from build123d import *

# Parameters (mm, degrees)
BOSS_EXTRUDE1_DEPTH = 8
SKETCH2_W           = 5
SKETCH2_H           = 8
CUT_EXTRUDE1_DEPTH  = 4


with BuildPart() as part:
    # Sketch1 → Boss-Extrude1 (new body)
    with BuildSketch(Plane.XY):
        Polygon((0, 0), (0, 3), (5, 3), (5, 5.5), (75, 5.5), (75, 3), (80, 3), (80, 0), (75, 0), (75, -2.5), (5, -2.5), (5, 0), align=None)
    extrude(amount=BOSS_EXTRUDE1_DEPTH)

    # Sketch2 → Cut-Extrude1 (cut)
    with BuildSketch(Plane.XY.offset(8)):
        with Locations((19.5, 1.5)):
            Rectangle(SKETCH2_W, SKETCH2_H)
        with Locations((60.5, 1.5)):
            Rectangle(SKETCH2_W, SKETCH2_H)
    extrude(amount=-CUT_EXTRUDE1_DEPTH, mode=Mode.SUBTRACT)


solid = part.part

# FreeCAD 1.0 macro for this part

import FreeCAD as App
import Part
import Sketcher
from FreeCAD import Vector

doc = App.newDocument("Part")
body = doc.addObject("PartDesign::Body", "Body")

# Sketch on XY plane
sketch1 = doc.addObject("Sketcher::SketchObject", "Sketch")
body.addObject(sketch1)
sketch1.AttachmentSupport = (doc.XY_Plane, [""])
sketch1.MapMode = "FlatFace"
sketch1.addGeometry(Part.LineSegment(Vector(0, 3, 0), Vector(0, 0, 0)), False)
sketch1.addGeometry(Part.LineSegment(Vector(0, 0, 0), Vector(5, 0, 0)), False)
sketch1.addGeometry(Part.LineSegment(Vector(5, 0, 0), Vector(5, -2.5, 0)), False)
sketch1.addGeometry(Part.LineSegment(Vector(5, -2.5, 0), Vector(75, -2.5, 0)), False)
sketch1.addGeometry(Part.LineSegment(Vector(75, -2.5, 0), Vector(75, 0, 0)), False)
sketch1.addGeometry(Part.LineSegment(Vector(75, 0, 0), Vector(80, 0, 0)), False)
sketch1.addGeometry(Part.LineSegment(Vector(80, 0, 0), Vector(80, 3, 0)), False)
sketch1.addGeometry(Part.LineSegment(Vector(80, 3, 0), Vector(75, 3, 0)), False)
sketch1.addGeometry(Part.LineSegment(Vector(75, 3, 0), Vector(75, 5.5, 0)), False)
sketch1.addGeometry(Part.LineSegment(Vector(75, 5.5, 0), Vector(5, 5.5, 0)), False)
sketch1.addGeometry(Part.LineSegment(Vector(5, 5.5, 0), Vector(5, 3, 0)), False)
sketch1.addGeometry(Part.LineSegment(Vector(5, 3, 0), Vector(0, 3, 0)), False)
sketch1.addConstraint(Sketcher.Constraint("Coincident", 0, 2, 1, 1))
sketch1.addConstraint(Sketcher.Constraint("Coincident", 1, 2, 2, 1))
sketch1.addConstraint(Sketcher.Constraint("Coincident", 2, 2, 3, 1))
sketch1.addConstraint(Sketcher.Constraint("Coincident", 3, 2, 4, 1))
sketch1.addConstraint(Sketcher.Constraint("Coincident", 4, 2, 5, 1))
sketch1.addConstraint(Sketcher.Constraint("Coincident", 5, 2, 6, 1))
sketch1.addConstraint(Sketcher.Constraint("Coincident", 6, 2, 7, 1))
sketch1.addConstraint(Sketcher.Constraint("Coincident", 7, 2, 8, 1))
sketch1.addConstraint(Sketcher.Constraint("Coincident", 8, 2, 9, 1))
sketch1.addConstraint(Sketcher.Constraint("Coincident", 9, 2, 10, 1))
sketch1.addConstraint(Sketcher.Constraint("Coincident", 10, 2, 11, 1))
sketch1.addConstraint(Sketcher.Constraint("Coincident", 11, 2, 0, 1))
sketch1.addConstraint(Sketcher.Constraint("Vertical", 0))
sketch1.addConstraint(Sketcher.Constraint("Horizontal", 1))
sketch1.addConstraint(Sketcher.Constraint("Vertical", 2))
sketch1.addConstraint(Sketcher.Constraint("Horizontal", 3))
sketch1.addConstraint(Sketcher.Constraint("Vertical", 4))
sketch1.addConstraint(Sketcher.Constraint("Horizontal", 5))
sketch1.addConstraint(Sketcher.Constraint("Vertical", 6))
sketch1.addConstraint(Sketcher.Constraint("Horizontal", 7))
sketch1.addConstraint(Sketcher.Constraint("Vertical", 8))
sketch1.addConstraint(Sketcher.Constraint("Horizontal", 9))
sketch1.addConstraint(Sketcher.Constraint("Vertical", 10))
sketch1.addConstraint(Sketcher.Constraint("Horizontal", 11))
sketch1.addConstraint(Sketcher.Constraint("Coincident", 0, 2, -1, 1))
sketch1.addConstraint(Sketcher.Constraint("PointOnObject", 4, 2, -1))
sketch1.addConstraint(Sketcher.Constraint("Horizontal", 7, 2, 10, 2))
sketch1.addConstraint(Sketcher.Constraint("Vertical", 4, 2, 7, 2))
sketch1.addConstraint(Sketcher.Constraint("Vertical", 2, 2, 9, 2))
sketch1.addConstraint(Sketcher.Constraint("Equal", 1, 5))
sketch1.addConstraint(Sketcher.Constraint("Equal", 4, 8))
sketch1.addConstraint(Sketcher.Constraint("DistanceX", 1, 1, 1, 2, 5.0))
sketch1.addConstraint(Sketcher.Constraint("DistanceX", 3, 1, 3, 2, 70.0))
sketch1.addConstraint(Sketcher.Constraint("DistanceY", 0, 2, 0, 1, 3.0))
sketch1.addConstraint(Sketcher.Constraint("DistanceY", 2, 2, 2, 1, 2.5))
pad1 = doc.addObject("PartDesign::Pad", "Pad")
body.addObject(pad1)
pad1.Profile = sketch1
pad1.Length = 8

# Sketch on XY plane
sketch2 = doc.addObject("Sketcher::SketchObject", "Sketch001")
body.addObject(sketch2)
sketch2.AttachmentSupport = (doc.XY_Plane, [""])
sketch2.MapMode = "FlatFace"
sketch2.AttachmentOffset = App.Placement(Vector(0, 0, 8), App.Rotation())
sketch2.addGeometry(Part.LineSegment(Vector(17, 6, 0), Vector(17, -2, 0)), False)
sketch2.addGeometry(Part.LineSegment(Vector(17, -2, 0), Vector(22, -2, 0)), False)
sketch2.addGeometry(Part.LineSegment(Vector(22, -2, 0), Vector(22, 6, 0)), False)
sketch2.addGeometry(Part.LineSegment(Vector(22, 6, 0), Vector(17, 6, 0)), False)
sketch2.addGeometry(Part.LineSegment(Vector(58, 6, 0), Vector(58, -2, 0)), False)
sketch2.addGeometry(Part.LineSegment(Vector(58, -2, 0), Vector(63, -2, 0)), False)
sketch2.addGeometry(Part.LineSegment(Vector(63, -2, 0), Vector(63, 6, 0)), False)
sketch2.addGeometry(Part.LineSegment(Vector(63, 6, 0), Vector(58, 6, 0)), False)
sketch2.addConstraint(Sketcher.Constraint("Coincident", 0, 2, 1, 1))
sketch2.addConstraint(Sketcher.Constraint("Coincident", 1, 2, 2, 1))
sketch2.addConstraint(Sketcher.Constraint("Coincident", 2, 2, 3, 1))
sketch2.addConstraint(Sketcher.Constraint("Coincident", 3, 2, 0, 1))
sketch2.addConstraint(Sketcher.Constraint("Coincident", 4, 2, 5, 1))
sketch2.addConstraint(Sketcher.Constraint("Coincident", 5, 2, 6, 1))
sketch2.addConstraint(Sketcher.Constraint("Coincident", 6, 2, 7, 1))
sketch2.addConstraint(Sketcher.Constraint("Coincident", 7, 2, 4, 1))
sketch2.addConstraint(Sketcher.Constraint("Vertical", 0))
sketch2.addConstraint(Sketcher.Constraint("Horizontal", 1))
sketch2.addConstraint(Sketcher.Constraint("Vertical", 2))
sketch2.addConstraint(Sketcher.Constraint("Horizontal", 3))
sketch2.addConstraint(Sketcher.Constraint("Vertical", 4))
sketch2.addConstraint(Sketcher.Constraint("Horizontal", 5))
sketch2.addConstraint(Sketcher.Constraint("Vertical", 6))
sketch2.addConstraint(Sketcher.Constraint("Horizontal", 7))
sketch2.addConstraint(Sketcher.Constraint("Horizontal", 1, 2, 4, 2))
sketch2.addConstraint(Sketcher.Constraint("Horizontal", 3, 2, 6, 2))
sketch2.addConstraint(Sketcher.Constraint("Equal", 3, 5))
sketch2.addConstraint(Sketcher.Constraint("DistanceX", 1, 1, 1, 2, 5.0))
sketch2.addConstraint(Sketcher.Constraint("DistanceY", 0, 2, 0, 1, 8.0))
sketch2.addConstraint(Sketcher.Constraint("DistanceX", -1, 1, 0, 2, 17.0))
sketch2.addConstraint(Sketcher.Constraint("DistanceX", -1, 1, 4, 2, 58.0))
sketch2.addConstraint(Sketcher.Constraint("DistanceY", 0, 2, -1, 1, 2.5))
pocket1 = doc.addObject("PartDesign::Pocket", "Pocket")
body.addObject(pocket1)
pocket1.Profile = sketch2
pocket1.Length = 4

doc.recompute()
